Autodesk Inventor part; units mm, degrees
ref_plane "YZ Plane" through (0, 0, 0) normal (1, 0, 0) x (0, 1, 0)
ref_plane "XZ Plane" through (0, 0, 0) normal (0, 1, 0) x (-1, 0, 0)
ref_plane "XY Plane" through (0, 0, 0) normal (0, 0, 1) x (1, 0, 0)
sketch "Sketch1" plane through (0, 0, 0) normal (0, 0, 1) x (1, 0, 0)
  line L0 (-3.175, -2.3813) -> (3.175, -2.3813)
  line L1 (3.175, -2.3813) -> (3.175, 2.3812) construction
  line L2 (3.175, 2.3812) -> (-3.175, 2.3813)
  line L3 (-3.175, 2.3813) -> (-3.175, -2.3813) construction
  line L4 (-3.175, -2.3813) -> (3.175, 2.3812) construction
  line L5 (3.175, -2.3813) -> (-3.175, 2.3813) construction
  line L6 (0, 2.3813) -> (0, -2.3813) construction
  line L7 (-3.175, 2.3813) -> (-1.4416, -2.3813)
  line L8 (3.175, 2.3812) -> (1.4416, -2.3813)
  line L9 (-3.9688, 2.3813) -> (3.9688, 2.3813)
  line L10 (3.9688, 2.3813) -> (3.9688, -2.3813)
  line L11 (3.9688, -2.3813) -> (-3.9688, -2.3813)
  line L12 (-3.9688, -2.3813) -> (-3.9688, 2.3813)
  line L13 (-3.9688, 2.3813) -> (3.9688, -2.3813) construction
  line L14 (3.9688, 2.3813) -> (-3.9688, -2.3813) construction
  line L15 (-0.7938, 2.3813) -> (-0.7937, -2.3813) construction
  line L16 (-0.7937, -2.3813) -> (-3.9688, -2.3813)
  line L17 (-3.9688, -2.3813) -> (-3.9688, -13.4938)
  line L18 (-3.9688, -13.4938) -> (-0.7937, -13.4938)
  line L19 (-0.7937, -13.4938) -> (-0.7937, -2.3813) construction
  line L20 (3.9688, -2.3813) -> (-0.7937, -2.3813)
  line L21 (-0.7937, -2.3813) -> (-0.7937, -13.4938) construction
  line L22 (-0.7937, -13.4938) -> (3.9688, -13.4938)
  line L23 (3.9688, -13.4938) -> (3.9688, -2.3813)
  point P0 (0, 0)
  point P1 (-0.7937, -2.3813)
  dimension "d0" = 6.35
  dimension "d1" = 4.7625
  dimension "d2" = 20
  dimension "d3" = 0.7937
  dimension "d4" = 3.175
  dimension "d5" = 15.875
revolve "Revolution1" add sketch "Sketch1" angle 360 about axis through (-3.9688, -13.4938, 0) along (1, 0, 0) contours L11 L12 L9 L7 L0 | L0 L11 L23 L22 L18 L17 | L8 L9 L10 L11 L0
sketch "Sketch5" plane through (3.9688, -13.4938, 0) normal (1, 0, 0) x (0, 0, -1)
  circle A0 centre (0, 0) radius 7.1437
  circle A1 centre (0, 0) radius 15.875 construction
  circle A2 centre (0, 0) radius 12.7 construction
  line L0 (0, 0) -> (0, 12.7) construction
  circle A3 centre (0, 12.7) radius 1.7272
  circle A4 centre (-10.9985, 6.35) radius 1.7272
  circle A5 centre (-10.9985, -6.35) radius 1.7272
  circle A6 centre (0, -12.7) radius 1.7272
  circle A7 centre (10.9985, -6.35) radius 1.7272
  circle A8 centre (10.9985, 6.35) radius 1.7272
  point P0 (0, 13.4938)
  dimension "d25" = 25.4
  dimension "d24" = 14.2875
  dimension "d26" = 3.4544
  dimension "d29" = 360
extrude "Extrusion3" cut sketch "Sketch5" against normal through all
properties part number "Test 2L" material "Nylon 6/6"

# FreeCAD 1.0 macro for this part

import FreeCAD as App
import Part
import Sketcher
from FreeCAD import Vector
Q = App.Units.Quantity


def add_polygon(sketch, points):
    """Adds a closed chain of lines whose ends are joined by coincident constraints."""
    first, n = sketch.GeometryCount, len(points)
    for a, b in zip(points, points[1:] + points[:1]):
        sketch.addGeometry(Part.LineSegment(App.Vector(*a, 0), App.Vector(*b, 0)), False)
    for i in range(n):
        sketch.addConstraint(Sketcher.Constraint("Coincident", first + i, 2, first + (i + 1) % n, 1))

doc = App.newDocument("Part")
params = doc.addObject("Spreadsheet::Sheet", "Params")
for row, (alias, value) in enumerate([
    ("sketch1_width", "0.031252 in"),
    ("sketch1_height", "0.625 in"),
    ("revolution_angle", "360 deg"),
    ("sketch2_diameter", "0.5625 in"),
    ("sketch2_diameter2", "0.136 in"),
], start=1):
    params.set(f"A{row}", alias)
    params.set(f"B{row}", "=" + value)
    params.setAlias(f"B{row}", alias)

body = doc.addObject("PartDesign::Body", "Body")

# Sketch on XY plane
sketch1 = body.newObject("Sketcher::SketchObject", "Sketch")
sketch1.AttachmentSupport = (doc.getObject("XY_Plane"), [""])
sketch1.MapMode = "FlatFace"
add_polygon(sketch1, [(-3.9688, 2.3813), (-3.9688, -13.4938), (3.9688, -13.4938), (3.9688, 2.3813), (3.175, 2.3812), (1.4416, -2.3813), (-1.4416, -2.3813), (-3.175, 2.3813)])  # lines 0-7
sketch1.addGeometry(Part.LineSegment(Vector(-3.9688, -13.4938, 0), Vector(3.9688, -13.4938, 0)), True)  # axis
sketch1.addConstraint(Sketcher.Constraint("Vertical", 0))
sketch1.addConstraint(Sketcher.Constraint("Horizontal", 1))
sketch1.addConstraint(Sketcher.Constraint("Vertical", 2))
sketch1.addConstraint(Sketcher.Constraint("Horizontal", 3))
sketch1.addConstraint(Sketcher.Constraint("Horizontal", 5))
sketch1.addConstraint(Sketcher.Constraint("Horizontal", 7))
sketch1.addConstraint(Sketcher.Constraint("Horizontal", 8))
sketch1.addConstraint(Sketcher.Constraint("Coincident", 8, 1, 0, 2))
sketch1.addConstraint(Sketcher.Constraint("Symmetric", 3, 2, 6, 2, -2))
sketch1.addConstraint(Sketcher.Constraint("Vertical", 2, 2, 8, 2))
sketch1.addConstraint(Sketcher.Constraint("Equal", 3, 7))
sketch1.addConstraint(Sketcher.Constraint("Equal", 4, 6))
sketch1.addConstraint(Sketcher.Constraint("DistanceX", 3, 2, 3, 1, Q("0.031252 in")))
sketch1.addConstraint(Sketcher.Constraint("DistanceY", 0, 2, 0, 1, Q("0.625 in")))
sketch1.addConstraint(Sketcher.Constraint("DistanceX", 6, 2, 3, 2, Q("0.25 in")))
sketch1.addConstraint(Sketcher.Constraint("Angle", 4, Q("-110 deg")))
sketch1.addConstraint(Sketcher.Constraint("DistanceY", 4, 2, 3, 2, Q("0.1875 in")))
sketch1.addConstraint(Sketcher.Constraint("DistanceY", 0, 2, -1, 1, Q("0.531252 in")))
sketch1.setExpression("Constraints[20]", "Params.sketch1_width")
sketch1.setExpression("Constraints[21]", "Params.sketch1_height")
revolution = body.newObject("PartDesign::Revolution", "Revolution")
revolution.Profile = sketch1
revolution.ReferenceAxis = (sketch1, ["Axis0"])
revolution.setExpression("Angle", "Params.revolution_angle")

# Sketch on YZ plane
sketch2 = body.newObject("Sketcher::SketchObject", "Sketch001")
sketch2.AttachmentSupport = (doc.getObject("YZ_Plane"), [""])
sketch2.MapMode = "FlatFace"
sketch2.AttachmentOffset = App.Placement(Vector(0, 0, 0.156252 * 25.4), App.Rotation())
sketch2.addGeometry(Part.Circle(Vector(-13.4938, 0, 0), Vector(0, 0, 1), 7.1437), False)
sketch2.addGeometry(Part.Circle(Vector(-0.7938, 0, 0), Vector(0, 0, 1), 1.7272), False)
sketch2.addGeometry(Part.Circle(Vector(-7.1438, 10.9985, 0), Vector(0, 0, 1), 1.7272), False)
sketch2.addGeometry(Part.Circle(Vector(-19.8438, 10.9985, 0), Vector(0, 0, 1), 1.7272), False)
sketch2.addGeometry(Part.Circle(Vector(-26.1938, 0, 0), Vector(0, 0, 1), 1.7272), False)
sketch2.addGeometry(Part.Circle(Vector(-19.8438, -10.9985, 0), Vector(0, 0, 1), 1.7272), False)
sketch2.addGeometry(Part.Circle(Vector(-7.1438, -10.9985, 0), Vector(0, 0, 1), 1.7272), False)
sketch2.addConstraint(Sketcher.Constraint("Equal", 1, 2))
sketch2.addConstraint(Sketcher.Constraint("Equal", 2, 3))
sketch2.addConstraint(Sketcher.Constraint("Equal", 3, 4))
sketch2.addConstraint(Sketcher.Constraint("Equal", 4, 5))
sketch2.addConstraint(Sketcher.Constraint("Equal", 5, 6))
sketch2.addConstraint(Sketcher.Constraint("Symmetric", 3, 3, 5, 3, -1))
sketch2.addConstraint(Sketcher.Constraint("Symmetric", 2, 3, 6, 3, -1))
sketch2.addConstraint(Sketcher.Constraint("PointOnObject", 0, 3, -1))
sketch2.addConstraint(Sketcher.Constraint("PointOnObject", 1, 3, -1))
sketch2.addConstraint(Sketcher.Constraint("PointOnObject", 4, 3, -1))
sketch2.addConstraint(Sketcher.Constraint("Horizontal", 2, 3, 3, 3))
sketch2.addConstraint(Sketcher.Constraint("Diameter", 0, Q("0.5625 in")))
sketch2.addConstraint(Sketcher.Constraint("Diameter", 1, Q("0.136 in")))
sketch2.addConstraint(Sketcher.Constraint("DistanceX", 4, 3, 1, 3, Q("1 in")))
sketch2.addConstraint(Sketcher.Constraint("DistanceX", 0, 3, 1, 3, Q("0.5 in")))
sketch2.addConstraint(Sketcher.Constraint("DistanceX", 3, 3, 2, 3, Q("0.5 in")))
sketch2.addConstraint(Sketcher.Constraint("DistanceX", 0, 3, 2, 3, Q("0.25 in")))
sketch2.addConstraint(Sketcher.Constraint("DistanceX", 0, 3, -1, 1, Q("0.531252 in")))
sketch2.addConstraint(Sketcher.Constraint("DistanceY", -1, 1, 2, 3, Q("0.433 in")))
sketch2.setExpression("Constraints[11]", "Params.sketch2_diameter")
sketch2.setExpression("Constraints[12]", "Params.sketch2_diameter2")
pocket1 = body.newObject("PartDesign::Pocket", "Pocket")
pocket1.Profile = sketch2
pocket1.Type = "ThroughAll"

doc.recompute()
